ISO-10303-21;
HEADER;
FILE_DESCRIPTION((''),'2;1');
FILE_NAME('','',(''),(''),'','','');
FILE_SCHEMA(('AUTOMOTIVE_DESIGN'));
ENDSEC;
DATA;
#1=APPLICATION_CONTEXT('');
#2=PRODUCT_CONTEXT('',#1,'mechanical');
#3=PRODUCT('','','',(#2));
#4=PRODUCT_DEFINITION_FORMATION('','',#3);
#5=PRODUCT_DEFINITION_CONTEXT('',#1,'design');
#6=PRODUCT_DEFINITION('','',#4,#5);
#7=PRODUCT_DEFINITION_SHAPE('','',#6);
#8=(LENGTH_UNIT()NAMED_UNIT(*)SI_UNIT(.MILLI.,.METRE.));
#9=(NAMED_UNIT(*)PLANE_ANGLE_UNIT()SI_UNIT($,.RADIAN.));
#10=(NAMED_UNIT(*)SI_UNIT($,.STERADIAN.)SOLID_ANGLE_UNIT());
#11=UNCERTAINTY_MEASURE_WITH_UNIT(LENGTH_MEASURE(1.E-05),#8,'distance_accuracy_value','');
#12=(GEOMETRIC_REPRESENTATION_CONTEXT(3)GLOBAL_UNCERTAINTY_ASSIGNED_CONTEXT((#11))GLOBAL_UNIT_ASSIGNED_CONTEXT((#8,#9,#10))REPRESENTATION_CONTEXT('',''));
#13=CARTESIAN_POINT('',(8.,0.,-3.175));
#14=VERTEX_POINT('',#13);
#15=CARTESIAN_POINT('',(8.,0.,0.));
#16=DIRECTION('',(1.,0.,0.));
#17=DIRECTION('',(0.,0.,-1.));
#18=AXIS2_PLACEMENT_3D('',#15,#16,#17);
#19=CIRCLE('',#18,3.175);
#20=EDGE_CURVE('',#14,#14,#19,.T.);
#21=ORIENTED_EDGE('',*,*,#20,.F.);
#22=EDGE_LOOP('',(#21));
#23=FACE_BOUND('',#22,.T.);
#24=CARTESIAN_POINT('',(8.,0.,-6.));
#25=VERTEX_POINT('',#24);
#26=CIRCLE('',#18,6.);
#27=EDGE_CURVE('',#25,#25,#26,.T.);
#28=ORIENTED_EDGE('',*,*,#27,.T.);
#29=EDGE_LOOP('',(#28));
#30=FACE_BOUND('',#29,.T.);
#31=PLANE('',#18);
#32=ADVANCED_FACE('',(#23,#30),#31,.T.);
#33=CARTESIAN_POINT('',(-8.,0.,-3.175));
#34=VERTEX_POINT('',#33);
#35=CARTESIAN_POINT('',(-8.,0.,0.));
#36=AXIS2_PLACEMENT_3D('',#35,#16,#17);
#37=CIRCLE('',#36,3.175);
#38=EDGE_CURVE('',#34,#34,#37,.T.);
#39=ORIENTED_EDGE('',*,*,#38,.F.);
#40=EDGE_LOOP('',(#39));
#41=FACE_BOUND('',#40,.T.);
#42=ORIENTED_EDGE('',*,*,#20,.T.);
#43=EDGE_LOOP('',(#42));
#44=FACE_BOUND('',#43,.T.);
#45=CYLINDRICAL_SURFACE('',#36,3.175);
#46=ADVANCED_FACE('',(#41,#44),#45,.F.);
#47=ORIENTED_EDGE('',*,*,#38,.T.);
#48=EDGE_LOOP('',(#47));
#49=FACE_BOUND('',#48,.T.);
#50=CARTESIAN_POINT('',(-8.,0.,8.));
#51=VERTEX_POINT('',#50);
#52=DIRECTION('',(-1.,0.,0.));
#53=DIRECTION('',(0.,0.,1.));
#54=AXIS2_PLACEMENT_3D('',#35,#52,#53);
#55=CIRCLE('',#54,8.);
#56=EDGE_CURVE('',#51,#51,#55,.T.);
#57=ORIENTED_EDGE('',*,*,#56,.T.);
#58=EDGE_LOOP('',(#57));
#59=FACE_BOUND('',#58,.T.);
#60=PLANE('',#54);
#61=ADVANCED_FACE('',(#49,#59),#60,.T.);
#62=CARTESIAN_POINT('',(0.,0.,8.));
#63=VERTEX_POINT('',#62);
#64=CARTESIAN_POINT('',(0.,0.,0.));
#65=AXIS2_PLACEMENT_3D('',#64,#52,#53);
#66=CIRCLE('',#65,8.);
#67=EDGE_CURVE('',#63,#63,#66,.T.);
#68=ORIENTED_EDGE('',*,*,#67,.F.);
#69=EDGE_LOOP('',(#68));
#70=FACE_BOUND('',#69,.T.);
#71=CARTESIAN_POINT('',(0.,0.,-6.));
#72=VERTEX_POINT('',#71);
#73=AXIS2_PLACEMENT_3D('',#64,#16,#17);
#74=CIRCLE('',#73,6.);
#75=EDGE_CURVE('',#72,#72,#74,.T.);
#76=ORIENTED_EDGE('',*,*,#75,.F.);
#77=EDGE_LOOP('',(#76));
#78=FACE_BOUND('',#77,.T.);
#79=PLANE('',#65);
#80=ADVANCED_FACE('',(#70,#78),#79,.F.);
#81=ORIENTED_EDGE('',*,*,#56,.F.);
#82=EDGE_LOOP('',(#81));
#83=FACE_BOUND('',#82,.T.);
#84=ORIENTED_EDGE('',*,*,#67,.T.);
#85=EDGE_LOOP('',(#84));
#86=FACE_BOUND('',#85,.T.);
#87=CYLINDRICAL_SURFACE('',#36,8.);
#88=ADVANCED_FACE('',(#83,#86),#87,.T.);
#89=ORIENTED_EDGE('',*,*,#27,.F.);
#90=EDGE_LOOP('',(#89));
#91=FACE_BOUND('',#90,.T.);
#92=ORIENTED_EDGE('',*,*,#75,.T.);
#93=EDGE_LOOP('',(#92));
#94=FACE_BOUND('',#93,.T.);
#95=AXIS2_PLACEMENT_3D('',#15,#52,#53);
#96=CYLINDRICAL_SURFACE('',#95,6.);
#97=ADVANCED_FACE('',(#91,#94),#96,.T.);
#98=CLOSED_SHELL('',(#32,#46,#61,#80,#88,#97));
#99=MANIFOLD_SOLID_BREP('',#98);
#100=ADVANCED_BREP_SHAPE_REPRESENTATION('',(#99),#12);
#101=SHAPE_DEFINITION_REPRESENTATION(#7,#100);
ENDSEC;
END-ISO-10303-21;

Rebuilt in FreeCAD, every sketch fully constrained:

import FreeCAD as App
import Part
import Sketcher

V = App.Vector

doc = App.newDocument("Part")
body = doc.addObject("PartDesign::Body", "Body")

# Sketch on YZ plane
sketch1 = body.newObject("Sketcher::SketchObject", "Sketch")
sketch1.AttachmentSupport = (doc.getObject("YZ_Plane"), [""])
sketch1.MapMode = "FlatFace"
sketch1.addGeometry(Part.Circle(V(0, 0, 0), V(0, 0, 1), 6), False)
sketch1.addConstraint([
    Sketcher.Constraint("Coincident", 0, 3, -1, 1),
    Sketcher.Constraint("Diameter", 0, 12.0),
])
pad1 = body.newObject("PartDesign::Pad", "Pad")
pad1.Profile = sketch1
pad1.Length = 8

# Sketch on YZ plane
sketch2 = body.newObject("Sketcher::SketchObject", "Sketch001")
sketch2.AttachmentSupport = (doc.getObject("YZ_Plane"), [""])
sketch2.MapMode = "FlatFace"
sketch2.addGeometry(Part.Circle(V(0, 0, 0), V(0, 0, 1), 8), False)
sketch2.addConstraint([
    Sketcher.Constraint("Coincident", 0, 3, -1, 1),
    Sketcher.Constraint("Diameter", 0, 16.0),
])
pad2 = body.newObject("PartDesign::Pad", "Pad001")
pad2.Profile = sketch2
pad2.Length = 8
pad2.Reversed = True

# Sketch on YZ plane
sketch3 = body.newObject("Sketcher::SketchObject", "Sketch002")
sketch3.AttachmentSupport = (doc.getObject("YZ_Plane"), [""])
sketch3.MapMode = "FlatFace"
sketch3.AttachmentOffset = App.Placement(V(0, 0, 8), App.Rotation())
sketch3.addGeometry(Part.Circle(V(0, 0, 0), V(0, 0, 1), 3.175), False)
sketch3.addConstraint([
    Sketcher.Constraint("Coincident", 0, 3, -1, 1),
    Sketcher.Constraint("Diameter", 0, 6.35),
])
pocket1 = body.newObject("PartDesign::Pocket", "Pocket")
pocket1.Profile = sketch3
pocket1.Type = "ThroughAll"

doc.recompute()
